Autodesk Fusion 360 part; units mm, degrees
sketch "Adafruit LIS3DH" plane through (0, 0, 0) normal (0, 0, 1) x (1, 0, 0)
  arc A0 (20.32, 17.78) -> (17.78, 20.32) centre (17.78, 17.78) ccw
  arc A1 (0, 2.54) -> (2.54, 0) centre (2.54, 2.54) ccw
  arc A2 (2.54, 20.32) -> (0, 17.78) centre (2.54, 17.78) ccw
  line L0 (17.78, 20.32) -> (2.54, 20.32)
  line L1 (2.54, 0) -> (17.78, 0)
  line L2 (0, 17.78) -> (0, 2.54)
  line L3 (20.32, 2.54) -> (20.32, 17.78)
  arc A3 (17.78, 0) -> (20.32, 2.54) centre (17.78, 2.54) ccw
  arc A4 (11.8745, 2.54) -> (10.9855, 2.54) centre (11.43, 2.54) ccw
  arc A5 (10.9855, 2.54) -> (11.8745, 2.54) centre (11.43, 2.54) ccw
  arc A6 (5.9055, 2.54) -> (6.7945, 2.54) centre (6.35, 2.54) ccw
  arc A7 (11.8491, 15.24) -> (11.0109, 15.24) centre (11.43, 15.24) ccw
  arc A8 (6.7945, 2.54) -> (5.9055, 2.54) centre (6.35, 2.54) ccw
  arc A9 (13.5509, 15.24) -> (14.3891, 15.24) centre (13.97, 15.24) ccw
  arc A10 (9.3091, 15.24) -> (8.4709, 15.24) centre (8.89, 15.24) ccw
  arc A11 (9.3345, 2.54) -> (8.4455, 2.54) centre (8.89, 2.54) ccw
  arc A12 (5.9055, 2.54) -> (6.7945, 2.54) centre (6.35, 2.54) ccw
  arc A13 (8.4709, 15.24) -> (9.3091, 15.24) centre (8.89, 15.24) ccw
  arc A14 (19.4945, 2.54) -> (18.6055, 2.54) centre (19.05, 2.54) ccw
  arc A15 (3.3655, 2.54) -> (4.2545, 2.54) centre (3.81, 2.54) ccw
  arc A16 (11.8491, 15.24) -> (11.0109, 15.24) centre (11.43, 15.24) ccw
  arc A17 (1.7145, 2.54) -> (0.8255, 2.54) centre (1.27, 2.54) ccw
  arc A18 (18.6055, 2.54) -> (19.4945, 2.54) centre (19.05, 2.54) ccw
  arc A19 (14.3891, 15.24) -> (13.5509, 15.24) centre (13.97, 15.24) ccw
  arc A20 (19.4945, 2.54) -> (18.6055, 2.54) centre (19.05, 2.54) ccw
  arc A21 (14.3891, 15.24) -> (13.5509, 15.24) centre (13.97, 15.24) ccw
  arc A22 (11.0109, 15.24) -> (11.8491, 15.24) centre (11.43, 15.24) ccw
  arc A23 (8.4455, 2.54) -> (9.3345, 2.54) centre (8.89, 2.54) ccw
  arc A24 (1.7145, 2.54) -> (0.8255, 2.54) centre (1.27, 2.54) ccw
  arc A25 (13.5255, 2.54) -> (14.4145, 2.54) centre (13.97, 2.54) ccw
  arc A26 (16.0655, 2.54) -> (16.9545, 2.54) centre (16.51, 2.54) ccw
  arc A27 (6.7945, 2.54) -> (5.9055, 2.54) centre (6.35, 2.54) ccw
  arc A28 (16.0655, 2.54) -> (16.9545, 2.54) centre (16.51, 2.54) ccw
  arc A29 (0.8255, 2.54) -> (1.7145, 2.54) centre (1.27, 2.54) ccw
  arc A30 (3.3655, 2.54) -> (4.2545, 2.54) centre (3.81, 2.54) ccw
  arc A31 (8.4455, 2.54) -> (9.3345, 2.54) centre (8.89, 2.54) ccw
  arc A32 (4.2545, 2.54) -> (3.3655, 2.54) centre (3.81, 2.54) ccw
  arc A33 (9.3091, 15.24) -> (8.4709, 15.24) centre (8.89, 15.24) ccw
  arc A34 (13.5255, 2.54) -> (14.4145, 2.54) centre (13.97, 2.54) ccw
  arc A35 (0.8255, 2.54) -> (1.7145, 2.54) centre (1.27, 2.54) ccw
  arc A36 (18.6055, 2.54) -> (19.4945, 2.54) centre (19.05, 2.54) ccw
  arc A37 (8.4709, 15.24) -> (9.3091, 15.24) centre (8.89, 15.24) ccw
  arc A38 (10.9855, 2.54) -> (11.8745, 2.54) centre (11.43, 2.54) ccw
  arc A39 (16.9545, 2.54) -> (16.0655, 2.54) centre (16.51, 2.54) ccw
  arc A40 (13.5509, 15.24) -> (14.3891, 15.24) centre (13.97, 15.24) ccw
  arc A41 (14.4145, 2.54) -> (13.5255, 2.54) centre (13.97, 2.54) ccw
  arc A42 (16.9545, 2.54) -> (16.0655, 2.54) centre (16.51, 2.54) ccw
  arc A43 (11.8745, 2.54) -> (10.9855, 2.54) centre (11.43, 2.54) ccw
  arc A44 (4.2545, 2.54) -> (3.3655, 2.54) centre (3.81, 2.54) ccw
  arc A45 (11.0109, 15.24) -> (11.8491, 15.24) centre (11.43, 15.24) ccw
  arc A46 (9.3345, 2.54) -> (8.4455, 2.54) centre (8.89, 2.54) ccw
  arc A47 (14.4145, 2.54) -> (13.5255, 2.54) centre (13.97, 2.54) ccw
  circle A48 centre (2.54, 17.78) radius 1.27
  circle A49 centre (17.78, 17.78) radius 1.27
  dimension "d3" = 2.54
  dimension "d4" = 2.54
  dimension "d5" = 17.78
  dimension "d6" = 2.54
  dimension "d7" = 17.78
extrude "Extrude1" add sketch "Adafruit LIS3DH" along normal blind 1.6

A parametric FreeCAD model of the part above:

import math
import FreeCAD as App
import Part
import Sketcher
from FreeCAD import Vector
Q = App.Units.Quantity

doc = App.newDocument("Part")
body = doc.addObject("PartDesign::Body", "Body")

# Sketch on XY plane
sketch1 = doc.addObject("Sketcher::SketchObject", "Sketch")
body.addObject(sketch1)
sketch1.AttachmentSupport = (doc.XY_Plane, [""])
sketch1.MapMode = "FlatFace"
sketch1.addGeometry([
    Part.LineSegment(Vector(20.32, 2.54, 0), Vector(20.32, 17.78, 0)),  # 0
    Part.ArcOfCircle(Part.Circle(Vector(17.78, 17.78, 0), Vector(0, 0, 1), 2.54), math.radians(0), math.radians(90)),  # 1
    Part.LineSegment(Vector(17.78, 20.32, 0), Vector(2.54, 20.32, 0)),  # 2
    Part.ArcOfCircle(Part.Circle(Vector(2.54, 17.78, 0), Vector(0, 0, 1), 2.54), math.radians(90), math.radians(180)),  # 3
    Part.LineSegment(Vector(0, 17.78, 0), Vector(0, 2.54, 0)),  # 4
    Part.ArcOfCircle(Part.Circle(Vector(2.54, 2.54, 0), Vector(0, 0, 1), 2.54), math.radians(180), math.radians(270)),  # 5
    Part.LineSegment(Vector(2.54, 0, 0), Vector(17.78, 0, 0)),  # 6
    Part.ArcOfCircle(Part.Circle(Vector(17.78, 2.54, 0), Vector(0, 0, 1), 2.54), math.radians(-90), math.radians(0)),  # 7
    Part.Circle(Vector(1.27, 2.54, 0), Vector(0, 0, 1), 0.44),  # 8
    Part.Circle(Vector(3.81, 2.54, 0), Vector(0, 0, 1), 0.44),  # 9
    Part.Circle(Vector(8.89, 2.54, 0), Vector(0, 0, 1), 0.44),  # 10
    Part.Circle(Vector(6.35, 2.54, 0), Vector(0, 0, 1), 0.44),  # 11
    Part.Circle(Vector(13.97, 2.54, 0), Vector(0, 0, 1), 0.44),  # 12
    Part.Circle(Vector(11.43, 2.54, 0), Vector(0, 0, 1), 0.44),  # 13
    Part.Circle(Vector(16.51, 2.54, 0), Vector(0, 0, 1), 0.44),  # 14
    Part.Circle(Vector(19.05, 2.54, 0), Vector(0, 0, 1), 0.44),  # 15
    Part.Circle(Vector(2.54, 17.78, 0), Vector(0, 0, 1), 1.27),  # 16
    Part.Circle(Vector(8.89, 15.24, 0), Vector(0, 0, 1), 0.42),  # 17
    Part.Circle(Vector(13.97, 15.24, 0), Vector(0, 0, 1), 0.42),  # 18
    Part.Circle(Vector(11.43, 15.24, 0), Vector(0, 0, 1), 0.42),  # 19
    Part.Circle(Vector(17.78, 17.78, 0), Vector(0, 0, 1), 1.27),  # 20
], False)
sketch1.addConstraint([
    Sketcher.Constraint("Tangent", 0, 2, 1, 1),
    Sketcher.Constraint("Tangent", 1, 2, 2, 1),
    Sketcher.Constraint("Tangent", 2, 2, 3, 1),
    Sketcher.Constraint("Tangent", 3, 2, 4, 1),
    Sketcher.Constraint("Tangent", 4, 2, 5, 1),
    Sketcher.Constraint("Tangent", 5, 2, 6, 1),
    Sketcher.Constraint("Tangent", 6, 2, 7, 1),
    Sketcher.Constraint("Tangent", 7, 2, 0, 1),
    Sketcher.Constraint("Vertical", 0),
    Sketcher.Constraint("Horizontal", 2),
    Sketcher.Constraint("Vertical", 4),
    Sketcher.Constraint("Horizontal", 6),
    Sketcher.Constraint("Coincident", 16, 3, 3, 3),
    Sketcher.Constraint("Coincident", 20, 3, 1, 3),
    Sketcher.Constraint("Equal", 1, 3),
    Sketcher.Constraint("Equal", 3, 5),
    Sketcher.Constraint("Equal", 5, 7),
    Sketcher.Constraint("Equal", 8, 9),
    Sketcher.Constraint("Equal", 9, 10),
    Sketcher.Constraint("Equal", 10, 11),
    Sketcher.Constraint("Equal", 11, 12),
    Sketcher.Constraint("Equal", 12, 13),
    Sketcher.Constraint("Equal", 13, 14),
    Sketcher.Constraint("Equal", 14, 15),
    Sketcher.Constraint("Equal", 17, 18),
    Sketcher.Constraint("Equal", 18, 19),
    Sketcher.Constraint("Equal", 16, 20),
    Sketcher.Constraint("PointOnObject", 3, 2, -2),
    Sketcher.Constraint("PointOnObject", 5, 2, -1),
    Sketcher.Constraint("Horizontal", 7, 3, 8, 3),
    Sketcher.Constraint("Horizontal", 8, 3, 9, 3),
    Sketcher.Constraint("Horizontal", 9, 3, 10, 3),
    Sketcher.Constraint("Horizontal", 10, 3, 11, 3),
    Sketcher.Constraint("Horizontal", 11, 3, 12, 3),
    Sketcher.Constraint("Horizontal", 12, 3, 13, 3),
    Sketcher.Constraint("Horizontal", 13, 3, 14, 3),
    Sketcher.Constraint("Horizontal", 14, 3, 15, 3),
    Sketcher.Constraint("Horizontal", 17, 3, 18, 3),
    Sketcher.Constraint("Horizontal", 18, 3, 19, 3),
    Sketcher.Constraint("Vertical", 10, 3, 17, 3),
    Sketcher.Constraint("Vertical", 12, 3, 18, 3),
    Sketcher.Constraint("Vertical", 13, 3, 19, 3),
    Sketcher.Constraint("Equal", 6, 0),
    Sketcher.Constraint("Diameter", 16, Q("0.1 in")),
    Sketcher.Constraint("Radius", 1, Q("0.1 in")),
    Sketcher.Constraint("DistanceX", -1, 1, 1, 3, Q("0.7 in")),
    Sketcher.Constraint("DistanceX", 8, 3, 9, 3, Q("0.1 in")),
    Sketcher.Constraint("DistanceX", 9, 3, 11, 3, Q("0.1 in")),
    Sketcher.Constraint("DistanceX", 11, 3, 10, 3, Q("0.1 in")),
    Sketcher.Constraint("DistanceX", 10, 3, 13, 3, Q("0.1 in")),
    Sketcher.Constraint("DistanceX", 13, 3, 12, 3, Q("0.1 in")),
    Sketcher.Constraint("DistanceX", 12, 3, 14, 3, Q("0.1 in")),
    Sketcher.Constraint("DistanceX", 14, 3, 15, 3, Q("0.1 in")),
    Sketcher.Constraint("DistanceY", 17, 3, 3, 3, Q("0.1 in")),
    Sketcher.Constraint("Diameter", 8, Q("0.035 in")),
    Sketcher.Constraint("Diameter", 17, Q("0.033 in")),
    Sketcher.Constraint("DistanceX", -1, 1, 8, 3, Q("0.05 in")),
])
pad1 = doc.addObject("PartDesign::Pad", "Pad")
body.addObject(pad1)
pad1.Profile = sketch1
pad1.Length = Q("0.0629921 in")

doc.recompute()
